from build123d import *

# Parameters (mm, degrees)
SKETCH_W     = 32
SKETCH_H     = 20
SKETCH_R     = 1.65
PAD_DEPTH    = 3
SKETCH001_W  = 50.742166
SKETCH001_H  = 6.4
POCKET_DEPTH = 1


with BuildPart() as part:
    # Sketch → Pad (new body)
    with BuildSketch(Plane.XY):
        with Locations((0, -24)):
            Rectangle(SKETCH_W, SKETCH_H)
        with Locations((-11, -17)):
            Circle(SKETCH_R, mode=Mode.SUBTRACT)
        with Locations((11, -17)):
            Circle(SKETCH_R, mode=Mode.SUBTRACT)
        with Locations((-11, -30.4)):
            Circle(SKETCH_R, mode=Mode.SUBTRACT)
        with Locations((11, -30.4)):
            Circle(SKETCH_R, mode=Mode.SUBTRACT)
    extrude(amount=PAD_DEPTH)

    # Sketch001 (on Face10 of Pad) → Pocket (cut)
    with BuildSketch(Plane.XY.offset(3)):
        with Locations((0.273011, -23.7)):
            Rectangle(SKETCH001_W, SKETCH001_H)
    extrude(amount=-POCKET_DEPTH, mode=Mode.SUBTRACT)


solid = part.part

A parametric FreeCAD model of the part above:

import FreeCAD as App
import Part
import Sketcher

V = App.Vector
Q = App.Units.Quantity

doc = App.newDocument("Part")
body = doc.addObject("PartDesign::Body", "Body")

sketch1 = doc.addObject("Sketcher::SketchObject", "Sketch")
body.addObject(sketch1)
sketch1.AttachmentSupport = (doc.XY_Plane, [""])
sketch1.MapMode = "FlatFace"
sketch1.addGeometry([
    Part.LineSegment(V(-16, -14, 0), V(-16, -34, 0)),
    Part.LineSegment(V(-16, -34, 0), V(16, -34, 0)),
    Part.LineSegment(V(16, -34, 0), V(16, -14, 0)),
    Part.LineSegment(V(16, -14, 0), V(-16, -14, 0)),
    Part.Circle(V(-11, -30.4, 0), V(0, 0, 1), 1.6),
    Part.Circle(V(11, -30.4, 0), V(0, 0, 1), 1.6),
    Part.Circle(V(-11, -17, 0), V(0, 0, 1), 1.6),
    Part.Circle(V(11, -17, 0), V(0, 0, 1), 1.6),
], False)
sketch1.addConstraint([
    Sketcher.Constraint("Coincident", 0, 2, 1, 1),
    Sketcher.Constraint("Coincident", 1, 2, 2, 1),
    Sketcher.Constraint("Coincident", 2, 2, 3, 1),
    Sketcher.Constraint("Coincident", 3, 2, 0, 1),
    Sketcher.Constraint("Vertical", 0),
    Sketcher.Constraint("Horizontal", 1),
    Sketcher.Constraint("Vertical", 2),
    Sketcher.Constraint("Horizontal", 3),
    Sketcher.Constraint("Equal", 4, 5),
    Sketcher.Constraint("Equal", 5, 6),
    Sketcher.Constraint("Equal", 6, 7),
    Sketcher.Constraint("Symmetric", 4, 3, 5, 3, -2),
    Sketcher.Constraint("Symmetric", 6, 3, 7, 3, -2),
    Sketcher.Constraint("Vertical", 4, 3, 6, 3),
    Sketcher.Constraint("Diameter", 4, Q("3.3 mm")),
    Sketcher.Constraint("DistanceX", 1, 1, 1, 2, Q("32 mm")),
    Sketcher.Constraint("DistanceY", 0, 2, 0, 1, Q("20 mm")),
    Sketcher.Constraint("DistanceX", 4, 3, -1, 1, Q("11 mm")),
    Sketcher.Constraint("DistanceY", 6, 3, -1, 1, Q("17 mm")),
    Sketcher.Constraint("DistanceX", 0, 2, -1, 1, Q("16 mm")),
    Sketcher.Constraint("DistanceY", 0, 2, -1, 1, Q("34 mm")),
    Sketcher.Constraint("DistanceY", 4, 3, -1, 1, Q("30.4 mm")),
])
pad1 = doc.addObject("PartDesign::Pad", "Pad")
body.addObject(pad1)
pad1.Profile = sketch1
pad1.Length = 3

sketch2 = doc.addObject("Sketcher::SketchObject", "Sketch001")
body.addObject(sketch2)
sketch2.AttachmentSupport = (doc.XY_Plane, [""])
sketch2.MapMode = "FlatFace"
sketch2.AttachmentOffset = App.Placement(V(0, 0, 3), App.Rotation())
sketch2.addGeometry([
    Part.LineSegment(V(-25, -20, 0), V(-25, -27, 0)),
    Part.LineSegment(V(-25, -27, 0), V(26, -27, 0)),
    Part.LineSegment(V(26, -27, 0), V(26, -20, 0)),
    Part.LineSegment(V(26, -20, 0), V(-25, -20, 0)),
], False)
sketch2.addConstraint([
    Sketcher.Constraint("Coincident", 0, 2, 1, 1),
    Sketcher.Constraint("Coincident", 1, 2, 2, 1),
    Sketcher.Constraint("Coincident", 2, 2, 3, 1),
    Sketcher.Constraint("Coincident", 3, 2, 0, 1),
    Sketcher.Constraint("Vertical", 0),
    Sketcher.Constraint("Horizontal", 1),
    Sketcher.Constraint("Vertical", 2),
    Sketcher.Constraint("Horizontal", 3),
    Sketcher.Constraint("DistanceY", 0, 2, 0, 1, Q("6.4 mm")),
    Sketcher.Constraint("DistanceY", 0, 2, -1, 1, Q("26.9 mm")),
    Sketcher.Constraint("DistanceX", 1, 1, 1, 2, Q("50.742166 mm")),
    Sketcher.Constraint("DistanceX", 0, 2, -1, 1, Q("25.098072 mm")),
])
pocket1 = doc.addObject("PartDesign::Pocket", "Pocket")
body.addObject(pocket1)
pocket1.Profile = sketch2
pocket1.Length = 1

doc.recompute()
